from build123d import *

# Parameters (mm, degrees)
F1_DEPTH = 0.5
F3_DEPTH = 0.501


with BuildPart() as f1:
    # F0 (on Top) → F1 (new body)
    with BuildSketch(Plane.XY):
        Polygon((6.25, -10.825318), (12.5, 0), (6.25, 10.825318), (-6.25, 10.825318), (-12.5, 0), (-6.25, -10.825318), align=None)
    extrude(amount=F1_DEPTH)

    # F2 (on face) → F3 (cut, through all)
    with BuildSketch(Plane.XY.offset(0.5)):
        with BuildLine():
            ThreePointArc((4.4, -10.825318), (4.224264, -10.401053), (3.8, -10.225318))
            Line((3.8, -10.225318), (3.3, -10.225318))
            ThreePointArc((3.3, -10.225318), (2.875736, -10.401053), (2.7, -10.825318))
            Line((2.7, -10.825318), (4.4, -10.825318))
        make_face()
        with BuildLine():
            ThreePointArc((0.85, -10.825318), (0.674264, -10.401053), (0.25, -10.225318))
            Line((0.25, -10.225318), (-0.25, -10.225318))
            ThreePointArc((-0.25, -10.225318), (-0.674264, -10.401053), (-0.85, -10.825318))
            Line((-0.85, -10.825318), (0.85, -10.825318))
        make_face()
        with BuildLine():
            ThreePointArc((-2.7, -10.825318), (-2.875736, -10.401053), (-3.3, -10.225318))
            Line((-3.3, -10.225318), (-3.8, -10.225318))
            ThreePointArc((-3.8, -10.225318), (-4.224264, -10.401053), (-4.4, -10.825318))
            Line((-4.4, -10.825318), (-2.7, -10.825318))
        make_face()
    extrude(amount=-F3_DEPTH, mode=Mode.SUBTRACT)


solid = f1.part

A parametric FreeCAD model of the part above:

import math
import FreeCAD as App
import Part
import Sketcher

V = App.Vector
Q = App.Units.Quantity

doc = App.newDocument("Part")
body = doc.addObject("PartDesign::Body", "Body")

sketch1 = body.newObject("Sketcher::SketchObject", "Sketch")
sketch1.AttachmentSupport = (doc.getObject("XY_Plane"), [""])
sketch1.MapMode = "FlatFace"
sketch1.addGeometry([
    Part.LineSegment(V(6, -11, 0), V(12, 0, 0)),
    Part.LineSegment(V(12, 0, 0), V(6, 11, 0)),
    Part.LineSegment(V(6, 11, 0), V(-6, 11, 0)),
    Part.LineSegment(V(-6, 11, 0), V(-12, 0, 0)),
    Part.LineSegment(V(-12, 0, 0), V(-6, -11, 0)),
    Part.LineSegment(V(-6, -11, 0), V(6, -11, 0)),
], False)
sketch1.addConstraint([
    Sketcher.Constraint("Coincident", 0, 2, 1, 1),
    Sketcher.Constraint("Coincident", 1, 2, 2, 1),
    Sketcher.Constraint("Coincident", 2, 2, 3, 1),
    Sketcher.Constraint("Coincident", 3, 2, 4, 1),
    Sketcher.Constraint("Coincident", 4, 2, 5, 1),
    Sketcher.Constraint("Coincident", 5, 2, 0, 1),
    Sketcher.Constraint("Horizontal", 2),
    Sketcher.Constraint("Horizontal", 5),
    Sketcher.Constraint("Symmetric", 0, 2, 3, 2, -1, 1),
    Sketcher.Constraint("Symmetric", 1, 2, 4, 2, -1, 1),
    Sketcher.Constraint("PointOnObject", 0, 2, -1),
    Sketcher.Constraint("Parallel", 0, 3),
    Sketcher.Constraint("Vertical", 2, 2, 4, 2),
    Sketcher.Constraint("Angle", 0, Q("60.000001 deg")),
    Sketcher.Constraint("DistanceX", 2, 2, 2, 1, 12.5),
    Sketcher.Constraint("DistanceX", 3, 2, 0, 2, 25.0),
])
pad1 = body.newObject("PartDesign::Pad", "Pad")
pad1.Profile = sketch1
pad1.Length = 0.5

sketch2 = body.newObject("Sketcher::SketchObject", "Sketch001")
sketch2.AttachmentSupport = (doc.getObject("XY_Plane"), [""])
sketch2.MapMode = "FlatFace"
sketch2.AttachmentOffset = App.Placement(V(0, 0, 0.5), App.Rotation())
sketch2.addGeometry([
    Part.ArcOfCircle(Part.Circle(V(3.8, -10.8, 0), V(0, 0, 1), 0.6), math.radians(0), math.radians(90)),
    Part.LineSegment(V(3.8, -10.2, 0), V(3.3, -10.2, 0)),
    Part.ArcOfCircle(Part.Circle(V(3.3, -10.8, 0), V(0, 0, 1), 0.6), math.radians(90), math.radians(180)),
    Part.LineSegment(V(2.7, -10.8, 0), V(4.4, -10.8, 0)),
    Part.ArcOfCircle(Part.Circle(V(0.3, -10.8, 0), V(0, 0, 1), 0.6), math.radians(0), math.radians(90)),
    Part.LineSegment(V(0.2, -10.2, 0), V(-0.2, -10.2, 0)),
    Part.ArcOfCircle(Part.Circle(V(-0.3, -10.8, 0), V(0, 0, 1), 0.6), math.radians(90), math.radians(180)),
    Part.LineSegment(V(-0.8, -10.8, 0), V(0.8, -10.8, 0)),
    Part.ArcOfCircle(Part.Circle(V(-3.3, -10.8, 0), V(0, 0, 1), 0.6), math.radians(0), math.radians(90)),
    Part.LineSegment(V(-3.3, -10.2, 0), V(-3.8, -10.2, 0)),
    Part.ArcOfCircle(Part.Circle(V(-3.8, -10.8, 0), V(0, 0, 1), 0.6), math.radians(90), math.radians(180)),
    Part.LineSegment(V(-4.4, -10.8, 0), V(-2.7, -10.8, 0)),
], False)
sketch2.addConstraint([
    Sketcher.Constraint("Coincident", 0, 2, 1, 1),
    Sketcher.Constraint("Coincident", 1, 2, 2, 1),
    Sketcher.Constraint("Coincident", 2, 2, 3, 1),
    Sketcher.Constraint("Coincident", 3, 2, 0, 1),
    Sketcher.Constraint("Coincident", 4, 2, 5, 1),
    Sketcher.Constraint("Coincident", 5, 2, 6, 1),
    Sketcher.Constraint("Coincident", 6, 2, 7, 1),
    Sketcher.Constraint("Coincident", 7, 2, 4, 1),
    Sketcher.Constraint("Coincident", 8, 2, 9, 1),
    Sketcher.Constraint("Coincident", 9, 2, 10, 1),
    Sketcher.Constraint("Coincident", 10, 2, 11, 1),
    Sketcher.Constraint("Coincident", 11, 2, 8, 1),
    Sketcher.Constraint("Horizontal", 1),
    Sketcher.Constraint("Horizontal", 3),
    Sketcher.Constraint("Horizontal", 5),
    Sketcher.Constraint("Horizontal", 7),
    Sketcher.Constraint("Horizontal", 9),
    Sketcher.Constraint("Horizontal", 11),
    Sketcher.Constraint("Equal", 0, 2),
    Sketcher.Constraint("Equal", 2, 4),
    Sketcher.Constraint("Equal", 4, 6),
    Sketcher.Constraint("Equal", 6, 8),
    Sketcher.Constraint("Equal", 8, 10),
    Sketcher.Constraint("Symmetric", 2, 3, 8, 3, -2),
    Sketcher.Constraint("Symmetric", 3, 2, 10, 2, -2),
    Sketcher.Constraint("Horizontal", 2, 3, 4, 3),
    Sketcher.Constraint("Horizontal", 10, 3, 2, 2),
    Sketcher.Constraint("Horizontal", 3, 2, 6, 2),
    Sketcher.Constraint("Vertical", 2, 3, 1, 2),
    Sketcher.Constraint("Vertical", 6, 3, 5, 2),
    Sketcher.Constraint("Vertical", 10, 3, 9, 2),
    Sketcher.Constraint("Equal", 1, 5),
    Sketcher.Constraint("Equal", 3, 7),
    Sketcher.Constraint("Equal", 5, 9),
    Sketcher.Constraint("Radius", 0, 0.599999),
    Sketcher.Constraint("DistanceX", 1, 2, 1, 1, 0.5),
    Sketcher.Constraint("DistanceX", 3, 1, 3, 2, 1.7),
    Sketcher.Constraint("DistanceX", -1, 1, 0, 3, 3.800001),
    Sketcher.Constraint("DistanceX", -1, 1, 4, 3, 0.250001),
    Sketcher.Constraint("DistanceY", 0, 2, -1, 1, 10.225318),
])
pocket1 = body.newObject("PartDesign::Pocket", "Pocket")
pocket1.Profile = sketch2
pocket1.Type = "ThroughAll"

doc.recompute()
